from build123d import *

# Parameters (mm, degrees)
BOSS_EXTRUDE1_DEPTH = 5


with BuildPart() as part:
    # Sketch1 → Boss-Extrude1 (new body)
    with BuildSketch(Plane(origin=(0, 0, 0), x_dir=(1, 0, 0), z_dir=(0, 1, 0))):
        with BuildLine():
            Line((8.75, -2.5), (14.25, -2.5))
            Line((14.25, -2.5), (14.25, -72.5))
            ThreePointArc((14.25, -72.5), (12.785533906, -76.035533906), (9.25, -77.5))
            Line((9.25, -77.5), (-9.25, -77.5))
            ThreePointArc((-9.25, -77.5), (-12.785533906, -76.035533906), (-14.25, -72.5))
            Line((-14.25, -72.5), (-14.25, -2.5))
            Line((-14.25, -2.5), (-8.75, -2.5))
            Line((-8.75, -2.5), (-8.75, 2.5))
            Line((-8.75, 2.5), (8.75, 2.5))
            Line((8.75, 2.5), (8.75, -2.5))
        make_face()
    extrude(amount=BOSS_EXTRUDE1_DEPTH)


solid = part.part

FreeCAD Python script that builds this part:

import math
import FreeCAD as App
import Part
import Sketcher
from FreeCAD import Vector

doc = App.newDocument("Part")
body = doc.addObject("PartDesign::Body", "Body")

# Sketch on XZ plane
sketch1 = doc.addObject("Sketcher::SketchObject", "Sketch")
body.addObject(sketch1)
sketch1.AttachmentSupport = (doc.XZ_Plane, [""])
sketch1.MapMode = "FlatFace"
sketch1.addGeometry([
    Part.LineSegment(Vector(14, 2, 0), Vector(9, 2, 0)),  # 0
    Part.LineSegment(Vector(9, 2, 0), Vector(9, -2, 0)),  # 1
    Part.LineSegment(Vector(9, -2, 0), Vector(-9, -2, 0)),  # 2
    Part.LineSegment(Vector(-9, -2, 0), Vector(-9, 2, 0)),  # 3
    Part.LineSegment(Vector(-9, 2, 0), Vector(-14, 2, 0)),  # 4
    Part.LineSegment(Vector(-14, 2, 0), Vector(-14, 72, 0)),  # 5
    Part.ArcOfCircle(Part.Circle(Vector(-9, 72, 0), Vector(0, 0, 1), 5), math.radians(90), math.radians(180)),  # 6
    Part.LineSegment(Vector(-9, 78, 0), Vector(9, 78, 0)),  # 7
    Part.ArcOfCircle(Part.Circle(Vector(9, 72, 0), Vector(0, 0, 1), 5), math.radians(0), math.radians(90)),  # 8
    Part.LineSegment(Vector(14, 72, 0), Vector(14, 2, 0)),  # 9
], False)
sketch1.addConstraint([
    Sketcher.Constraint("Coincident", 0, 2, 1, 1),
    Sketcher.Constraint("Coincident", 1, 2, 2, 1),
    Sketcher.Constraint("Coincident", 2, 2, 3, 1),
    Sketcher.Constraint("Coincident", 3, 2, 4, 1),
    Sketcher.Constraint("Coincident", 4, 2, 5, 1),
    Sketcher.Constraint("Tangent", 5, 2, 6, 2),
    Sketcher.Constraint("Tangent", 6, 1, 7, 1),
    Sketcher.Constraint("Tangent", 7, 2, 8, 2),
    Sketcher.Constraint("Tangent", 8, 1, 9, 1),
    Sketcher.Constraint("Coincident", 9, 2, 0, 1),
    Sketcher.Constraint("Horizontal", 0),
    Sketcher.Constraint("Vertical", 1),
    Sketcher.Constraint("Horizontal", 2),
    Sketcher.Constraint("Vertical", 3),
    Sketcher.Constraint("Horizontal", 4),
    Sketcher.Constraint("Vertical", 5),
    Sketcher.Constraint("Horizontal", 7),
    Sketcher.Constraint("Vertical", 9),
    Sketcher.Constraint("Equal", 6, 8),
    Sketcher.Constraint("Symmetric", 0, 2, 2, 2, -1, 1),
    Sketcher.Constraint("Symmetric", 4, 2, 9, 2, -2),
    Sketcher.Constraint("Radius", 6, 5.0),
    Sketcher.Constraint("DistanceY", 1, 2, 1, 1, 5.0),
    Sketcher.Constraint("DistanceY", 5, 1, 5, 2, 70.0),
    Sketcher.Constraint("DistanceX", 0, 2, 0, 1, 5.5),
    Sketcher.Constraint("DistanceX", 2, 2, 2, 1, 17.5),
])
pad1 = doc.addObject("PartDesign::Pad", "Pad")
body.addObject(pad1)
pad1.Profile = sketch1
pad1.Length = 5
pad1.Reversed = True

doc.recompute()
